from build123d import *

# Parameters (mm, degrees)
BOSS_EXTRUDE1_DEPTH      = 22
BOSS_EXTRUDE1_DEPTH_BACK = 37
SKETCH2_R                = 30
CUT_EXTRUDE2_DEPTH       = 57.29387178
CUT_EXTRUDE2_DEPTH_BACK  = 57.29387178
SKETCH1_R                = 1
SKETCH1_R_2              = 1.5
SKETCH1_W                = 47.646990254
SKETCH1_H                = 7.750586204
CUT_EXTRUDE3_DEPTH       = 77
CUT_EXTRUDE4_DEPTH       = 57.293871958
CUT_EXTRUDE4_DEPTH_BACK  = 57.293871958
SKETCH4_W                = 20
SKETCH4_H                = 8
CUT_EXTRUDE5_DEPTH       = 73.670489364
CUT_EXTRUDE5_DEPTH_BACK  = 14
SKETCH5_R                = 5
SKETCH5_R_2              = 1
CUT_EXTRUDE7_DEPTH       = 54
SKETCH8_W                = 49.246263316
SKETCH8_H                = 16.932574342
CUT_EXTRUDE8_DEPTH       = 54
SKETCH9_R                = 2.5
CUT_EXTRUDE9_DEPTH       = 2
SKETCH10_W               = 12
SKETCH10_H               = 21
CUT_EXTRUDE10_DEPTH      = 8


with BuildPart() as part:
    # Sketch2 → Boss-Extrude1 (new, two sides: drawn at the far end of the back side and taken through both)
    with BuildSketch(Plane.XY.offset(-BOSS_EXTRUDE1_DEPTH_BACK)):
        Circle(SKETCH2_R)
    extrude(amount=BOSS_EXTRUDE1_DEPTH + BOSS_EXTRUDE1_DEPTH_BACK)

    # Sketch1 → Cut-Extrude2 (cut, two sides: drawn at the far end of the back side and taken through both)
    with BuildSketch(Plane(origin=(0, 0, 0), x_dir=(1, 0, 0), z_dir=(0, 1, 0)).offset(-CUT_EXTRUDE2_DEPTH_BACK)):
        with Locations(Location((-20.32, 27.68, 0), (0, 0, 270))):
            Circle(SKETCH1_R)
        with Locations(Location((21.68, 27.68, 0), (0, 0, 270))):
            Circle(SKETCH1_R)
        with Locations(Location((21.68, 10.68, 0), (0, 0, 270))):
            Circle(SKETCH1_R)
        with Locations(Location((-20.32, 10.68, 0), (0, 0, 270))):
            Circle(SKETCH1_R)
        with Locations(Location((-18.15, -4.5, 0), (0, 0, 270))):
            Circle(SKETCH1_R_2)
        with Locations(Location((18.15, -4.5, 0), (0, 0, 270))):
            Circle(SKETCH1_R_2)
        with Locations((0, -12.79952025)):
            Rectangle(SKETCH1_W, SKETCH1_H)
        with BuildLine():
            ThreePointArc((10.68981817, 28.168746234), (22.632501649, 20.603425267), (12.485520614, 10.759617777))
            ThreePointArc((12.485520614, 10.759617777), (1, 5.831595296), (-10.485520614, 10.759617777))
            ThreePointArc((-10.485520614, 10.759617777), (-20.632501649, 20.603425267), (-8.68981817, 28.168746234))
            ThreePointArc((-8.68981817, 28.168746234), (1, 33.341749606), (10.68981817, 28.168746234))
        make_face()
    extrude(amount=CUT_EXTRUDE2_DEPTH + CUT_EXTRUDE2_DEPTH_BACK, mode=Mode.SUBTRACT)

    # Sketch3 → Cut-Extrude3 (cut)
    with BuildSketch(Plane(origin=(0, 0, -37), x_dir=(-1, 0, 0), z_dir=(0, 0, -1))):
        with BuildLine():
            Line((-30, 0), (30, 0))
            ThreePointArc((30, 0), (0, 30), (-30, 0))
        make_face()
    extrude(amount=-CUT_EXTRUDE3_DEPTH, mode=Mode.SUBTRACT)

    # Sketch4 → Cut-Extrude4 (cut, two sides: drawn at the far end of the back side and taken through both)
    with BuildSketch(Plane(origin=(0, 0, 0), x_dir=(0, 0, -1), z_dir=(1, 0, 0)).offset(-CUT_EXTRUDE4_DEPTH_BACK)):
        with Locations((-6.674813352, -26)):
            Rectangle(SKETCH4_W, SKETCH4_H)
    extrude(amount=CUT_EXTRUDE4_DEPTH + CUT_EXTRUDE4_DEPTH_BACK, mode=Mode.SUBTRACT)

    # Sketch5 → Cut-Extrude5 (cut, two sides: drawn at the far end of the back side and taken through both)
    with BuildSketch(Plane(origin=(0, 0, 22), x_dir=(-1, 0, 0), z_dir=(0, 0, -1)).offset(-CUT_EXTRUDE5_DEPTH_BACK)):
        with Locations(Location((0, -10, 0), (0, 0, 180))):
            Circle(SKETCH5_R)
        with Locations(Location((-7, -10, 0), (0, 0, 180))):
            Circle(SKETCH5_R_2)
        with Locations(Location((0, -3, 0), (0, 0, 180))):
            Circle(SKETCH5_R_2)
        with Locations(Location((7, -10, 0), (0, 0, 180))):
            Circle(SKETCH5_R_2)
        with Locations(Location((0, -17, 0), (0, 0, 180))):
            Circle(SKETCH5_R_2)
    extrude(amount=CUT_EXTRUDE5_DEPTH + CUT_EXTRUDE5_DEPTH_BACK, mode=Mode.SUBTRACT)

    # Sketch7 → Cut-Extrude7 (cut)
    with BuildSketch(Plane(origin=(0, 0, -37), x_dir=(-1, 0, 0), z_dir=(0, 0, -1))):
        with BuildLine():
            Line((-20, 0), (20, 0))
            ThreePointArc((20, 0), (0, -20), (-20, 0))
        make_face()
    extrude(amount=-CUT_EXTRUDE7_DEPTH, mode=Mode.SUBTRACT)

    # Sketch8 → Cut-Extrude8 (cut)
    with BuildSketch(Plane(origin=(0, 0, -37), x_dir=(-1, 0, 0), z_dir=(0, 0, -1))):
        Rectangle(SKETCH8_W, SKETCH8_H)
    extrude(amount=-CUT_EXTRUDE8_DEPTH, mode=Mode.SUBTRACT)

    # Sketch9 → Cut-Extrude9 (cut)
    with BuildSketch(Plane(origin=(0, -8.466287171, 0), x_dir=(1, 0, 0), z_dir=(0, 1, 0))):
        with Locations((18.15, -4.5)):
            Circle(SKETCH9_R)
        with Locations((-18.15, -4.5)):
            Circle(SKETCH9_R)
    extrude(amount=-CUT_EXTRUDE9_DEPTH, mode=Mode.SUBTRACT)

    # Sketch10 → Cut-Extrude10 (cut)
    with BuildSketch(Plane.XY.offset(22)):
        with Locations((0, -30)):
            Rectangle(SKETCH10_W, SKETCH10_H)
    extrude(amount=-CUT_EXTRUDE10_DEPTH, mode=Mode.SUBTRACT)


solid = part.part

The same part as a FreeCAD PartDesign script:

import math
import FreeCAD as App
import Part
import Sketcher

V = App.Vector
Q = App.Units.Quantity

doc = App.newDocument("Part")
params = doc.addObject("Spreadsheet::Sheet", "Params")
for row, (alias, value) in enumerate([
    ("sketch1_diameter", "60 mm"),
    ("pad1_length", "22 mm"),
    ("pad1_length2", "37 mm"),
    ("sketch2_diameter", "2 mm"),
    ("sketch2_diameter2", "3 mm"),
    ("sketch2_radius", "9 mm"),
    ("sketch3_radius", "30 mm"),
    ("pocket2_length", "77 mm"),
    ("sketch4_width", "8 mm"),
    ("sketch4_height", "20 mm"),
    ("sketch5_diameter", "10 mm"),
    ("sketch5_diameter2", "2 mm"),
    ("sketch6_radius", "20 mm"),
    ("pocket5_length", "54 mm"),
    ("pocket6_length", "54 mm"),
    ("sketch8_diameter", "5 mm"),
    ("pocket7_length", "2 mm"),
    ("sketch9_width", "12 mm"),
    ("sketch9_height", "21 mm"),
    ("pocket8_length", "8 mm"),
], start=1):
    params.set(f"A{row}", alias)
    params.set(f"B{row}", "=" + value)
    params.setAlias(f"B{row}", alias)

body = doc.addObject("PartDesign::Body", "Body")

sketch1 = body.newObject("Sketcher::SketchObject", "Sketch")
sketch1.AttachmentSupport = (doc.getObject("XY_Plane"), [""])
sketch1.MapMode = "FlatFace"
sketch1.addGeometry(Part.Circle(V(0, 0, 0), V(0, 0, 1), 30), False)
sketch1.addConstraint(Sketcher.Constraint("Coincident", 0, 3, -1, 1))
sketch1.addConstraint(Sketcher.Constraint("Diameter", 0, Q("60 mm")))
sketch1.setExpression("Constraints[1]", "Params.sketch1_diameter")
pad1 = body.newObject("PartDesign::Pad", "Pad")
pad1.Profile = sketch1
pad1.Type = "TwoLengths"
pad1.setExpression("Length", "Params.pad1_length")
pad1.setExpression("Length2", "Params.pad1_length2")

sketch2 = body.newObject("Sketcher::SketchObject", "Sketch001")
sketch2.AttachmentSupport = (doc.getObject("XZ_Plane"), [""])
sketch2.MapMode = "FlatFace"
sketch2.addGeometry(Part.Circle(V(-20.32, -27.68, 0), V(0, 0, 1), 1), False)
sketch2.addGeometry(Part.Circle(V(21.68, -27.68, 0), V(0, 0, 1), 1), False)
sketch2.addGeometry(Part.Circle(V(21.68, -10.68, 0), V(0, 0, 1), 1), False)
sketch2.addGeometry(Part.Circle(V(-20.32, -10.68, 0), V(0, 0, 1), 1), False)
sketch2.addGeometry(Part.Circle(V(-18.15, 4.5, 0), V(0, 0, 1), 1.5), False)
sketch2.addGeometry(Part.Circle(V(18.15, 4.5, 0), V(0, 0, 1), 1.5), False)
sketch2.addGeometry(Part.LineSegment(V(-23.823495, 8.924227, 0), V(-23.823495, 16.674813, 0)), False)
sketch2.addGeometry(Part.LineSegment(V(-23.823495, 16.674813, 0), V(23.823495, 16.674813, 0)), False)
sketch2.addGeometry(Part.LineSegment(V(23.823495, 16.674813, 0), V(23.823495, 8.924227, 0)), False)
sketch2.addGeometry(Part.LineSegment(V(23.823495, 8.924227, 0), V(-23.823495, 8.924227, 0)), False)
sketch2.addGeometry(Part.ArcOfCircle(Part.Circle(V(13.68, -19.68, 0), V(0, 0, 1), 9), math.radians(-109.404938), math.radians(97.626795)), False)
sketch2.addGeometry(Part.ArcOfCircle(Part.Circle(V(1, -21.68, 0), V(0, 0, 1), 11.66175), math.radians(-146.191923), math.radians(-33.808077)), False)
sketch2.addGeometry(Part.ArcOfCircle(Part.Circle(V(-11.68, -19.68, 0), V(0, 0, 1), 9), math.radians(82.373205), math.radians(289.404938)), False)
sketch2.addGeometry(Part.ArcOfCircle(Part.Circle(V(1, -21.68, 0), V(0, 0, 1), 15.848405), math.radians(43.555149), math.radians(136.444851)), False)
sketch2.addConstraint(Sketcher.Constraint("Coincident", 6, 2, 7, 1))
sketch2.addConstraint(Sketcher.Constraint("Coincident", 7, 2, 8, 1))
sketch2.addConstraint(Sketcher.Constraint("Coincident", 8, 2, 9, 1))
sketch2.addConstraint(Sketcher.Constraint("Coincident", 9, 2, 6, 1))
sketch2.addConstraint(Sketcher.Constraint("Coincident", 10, 1, 11, 2))
sketch2.addConstraint(Sketcher.Constraint("Coincident", 11, 1, 12, 2))
sketch2.addConstraint(Sketcher.Constraint("Coincident", 12, 1, 13, 2))
sketch2.addConstraint(Sketcher.Constraint("Coincident", 13, 1, 10, 2))
sketch2.addConstraint(Sketcher.Constraint("Vertical", 6))
sketch2.addConstraint(Sketcher.Constraint("Horizontal", 7))
sketch2.addConstraint(Sketcher.Constraint("Vertical", 8))
sketch2.addConstraint(Sketcher.Constraint("Horizontal", 9))
sketch2.addConstraint(Sketcher.Constraint("Coincident", 13, 3, 11, 3))
sketch2.addConstraint(Sketcher.Constraint("Equal", 0, 1))
sketch2.addConstraint(Sketcher.Constraint("Equal", 1, 2))
sketch2.addConstraint(Sketcher.Constraint("Equal", 2, 3))
sketch2.addConstraint(Sketcher.Constraint("Equal", 4, 5))
sketch2.addConstraint(Sketcher.Constraint("Equal", 10, 12))
sketch2.addConstraint(Sketcher.Constraint("Symmetric", 4, 3, 5, 3, -2))
sketch2.addConstraint(Sketcher.Constraint("Horizontal", 0, 3, 1, 3))
sketch2.addConstraint(Sketcher.Constraint("Horizontal", 2, 3, 3, 3))
sketch2.addConstraint(Sketcher.Constraint("Horizontal", 10, 3, 12, 3))
sketch2.addConstraint(Sketcher.Constraint("Horizontal", 10, 1, 11, 1))
sketch2.addConstraint(Sketcher.Constraint("Vertical", 1, 3, 2, 3))
sketch2.addConstraint(Sketcher.Constraint("Vertical", 0, 3, 3, 3))
sketch2.addConstraint(Sketcher.Constraint("Diameter", 0, Q("2 mm")))
sketch2.addConstraint(Sketcher.Constraint("Diameter", 4, Q("3 mm")))
sketch2.addConstraint(Sketcher.Constraint("Radius", 10, Q("9 mm")))
sketch2.addConstraint(Sketcher.Constraint("DistanceX", -1, 1, 11, 3, Q("1 mm")))
sketch2.addConstraint(Sketcher.Constraint("DistanceX", 0, 3, 1, 3, Q("42 mm")))
sketch2.addConstraint(Sketcher.Constraint("DistanceY", 1, 3, 2, 3, Q("17 mm")))
sketch2.addConstraint(Sketcher.Constraint("DistanceX", 10, 3, 1, 3, Q("8 mm")))
sketch2.addConstraint(Sketcher.Constraint("DistanceY", 1, 3, 10, 3, Q("8 mm")))
sketch2.addConstraint(Sketcher.Constraint("DistanceY", 11, 3, 10, 3, Q("2 mm")))
sketch2.addConstraint(Sketcher.Constraint("DistanceY", -1, 1, 4, 3, Q("4.5 mm")))
sketch2.addConstraint(Sketcher.Constraint("DistanceX", 4, 3, 5, 3, Q("36.3 mm")))
sketch2.addConstraint(Sketcher.Constraint("DistanceX", 0, 3, -1, 1, Q("20.32 mm")))
sketch2.addConstraint(Sketcher.Constraint("DistanceY", 0, 3, -1, 1, Q("27.68 mm")))
sketch2.addConstraint(Sketcher.Constraint("Radius", 11, Q("11.66175 mm")))
sketch2.addConstraint(Sketcher.Constraint("Radius", 13, Q("15.848405 mm")))
sketch2.addConstraint(Sketcher.Constraint("DistanceX", 7, 1, 7, 2, Q("47.64699 mm")))
sketch2.addConstraint(Sketcher.Constraint("DistanceY", 6, 1, 6, 2, Q("7.750586 mm")))
sketch2.addConstraint(Sketcher.Constraint("DistanceX", 6, 2, -1, 1, Q("23.823495 mm")))
sketch2.addConstraint(Sketcher.Constraint("DistanceY", -1, 1, 6, 2, Q("16.674813 mm")))
sketch2.setExpression("Constraints[25]", "Params.sketch2_diameter")
sketch2.setExpression("Constraints[26]", "Params.sketch2_diameter2")
sketch2.setExpression("Constraints[27]", "Params.sketch2_radius")
pocket1 = body.newObject("PartDesign::Pocket", "Pocket")
pocket1.Profile = sketch2
pocket1.Type = "ThroughAll"
pocket1.Midplane = True

sketch3 = body.newObject("Sketcher::SketchObject", "Sketch002")
sketch3.AttachmentSupport = (doc.getObject("XY_Plane"), [""])
sketch3.MapMode = "FlatFace"
sketch3.AttachmentOffset = App.Placement(V(0, 0, -37), App.Rotation())
sketch3.addGeometry(Part.LineSegment(V(30, 0, 0), V(-30, 0, 0)), False)
sketch3.addGeometry(Part.ArcOfCircle(Part.Circle(V(0, 0, 0), V(0, 0, 1), 30), math.radians(0), math.radians(180)), False)
sketch3.addConstraint(Sketcher.Constraint("Coincident", 0, 1, 1, 1))
sketch3.addConstraint(Sketcher.Constraint("Coincident", 1, 2, 0, 2))
sketch3.addConstraint(Sketcher.Constraint("Horizontal", 0))
sketch3.addConstraint(Sketcher.Constraint("Coincident", 1, 3, -1, 1))
sketch3.addConstraint(Sketcher.Constraint("PointOnObject", 0, 1, -1))
sketch3.addConstraint(Sketcher.Constraint("Radius", 1, Q("30 mm")))
sketch3.setExpression("Constraints[5]", "Params.sketch3_radius")
pocket2 = body.newObject("PartDesign::Pocket", "Pocket001")
pocket2.Profile = sketch3
pocket2.setExpression("Length", "Params.pocket2_length")
pocket2.Reversed = True

sketch4 = body.newObject("Sketcher::SketchObject", "Sketch003")
sketch4.AttachmentSupport = (doc.getObject("YZ_Plane"), [""])
sketch4.MapMode = "FlatFace"
sketch4.addGeometry(Part.LineSegment(V(-22, 16.674813, 0), V(-30, 16.674813, 0)), False)
sketch4.addGeometry(Part.LineSegment(V(-30, 16.674813, 0), V(-30, -3.325187, 0)), False)
sketch4.addGeometry(Part.LineSegment(V(-30, -3.325187, 0), V(-22, -3.325187, 0)), False)
sketch4.addGeometry(Part.LineSegment(V(-22, -3.325187, 0), V(-22, 16.674813, 0)), False)
sketch4.addConstraint(Sketcher.Constraint("Coincident", 0, 2, 1, 1))
sketch4.addConstraint(Sketcher.Constraint("Coincident", 1, 2, 2, 1))
sketch4.addConstraint(Sketcher.Constraint("Coincident", 2, 2, 3, 1))
sketch4.addConstraint(Sketcher.Constraint("Coincident", 3, 2, 0, 1))
sketch4.addConstraint(Sketcher.Constraint("Horizontal", 0))
sketch4.addConstraint(Sketcher.Constraint("Vertical", 1))
sketch4.addConstraint(Sketcher.Constraint("Horizontal", 2))
sketch4.addConstraint(Sketcher.Constraint("Vertical", 3))
sketch4.addConstraint(Sketcher.Constraint("DistanceX", 0, 2, 0, 1, Q("8 mm")))
sketch4.addConstraint(Sketcher.Constraint("DistanceY", 1, 2, 1, 1, Q("20 mm")))
sketch4.addConstraint(Sketcher.Constraint("DistanceX", 0, 2, -1, 1, Q("30 mm")))
sketch4.addConstraint(Sketcher.Constraint("DistanceY", -1, 1, 0, 2, Q("16.674813 mm")))
sketch4.setExpression("Constraints[8]", "Params.sketch4_width")
sketch4.setExpression("Constraints[9]", "Params.sketch4_height")
pocket3 = body.newObject("PartDesign::Pocket", "Pocket002")
pocket3.Profile = sketch4
pocket3.Type = "ThroughAll"
pocket3.Midplane = True

sketch5 = body.newObject("Sketcher::SketchObject", "Sketch004")
sketch5.AttachmentSupport = (doc.getObject("XY_Plane"), [""])
sketch5.MapMode = "FlatFace"
sketch5.AttachmentOffset = App.Placement(V(0, 0, 22), App.Rotation())
sketch5.addGeometry(Part.Circle(V(0, -10, 0), V(0, 0, 1), 5), False)
sketch5.addGeometry(Part.Circle(V(7, -10, 0), V(0, 0, 1), 1), False)
sketch5.addGeometry(Part.Circle(V(0, -3, 0), V(0, 0, 1), 1), False)
sketch5.addGeometry(Part.Circle(V(-7, -10, 0), V(0, 0, 1), 1), False)
sketch5.addGeometry(Part.Circle(V(0, -17, 0), V(0, 0, 1), 1), False)
sketch5.addConstraint(Sketcher.Constraint("Equal", 1, 2))
sketch5.addConstraint(Sketcher.Constraint("Equal", 2, 3))
sketch5.addConstraint(Sketcher.Constraint("Equal", 3, 4))
sketch5.addConstraint(Sketcher.Constraint("Symmetric", 1, 3, 3, 3, -2))
sketch5.addConstraint(Sketcher.Constraint("PointOnObject", 0, 3, -2))
sketch5.addConstraint(Sketcher.Constraint("PointOnObject", 2, 3, -2))
sketch5.addConstraint(Sketcher.Constraint("PointOnObject", 4, 3, -2))
sketch5.addConstraint(Sketcher.Constraint("Horizontal", 0, 3, 1, 3))
sketch5.addConstraint(Sketcher.Constraint("Diameter", 0, Q("10 mm")))
sketch5.addConstraint(Sketcher.Constraint("Diameter", 1, Q("2 mm")))
sketch5.addConstraint(Sketcher.Constraint("DistanceY", 0, 3, -1, 1, Q("10 mm")))
sketch5.addConstraint(Sketcher.Constraint("DistanceX", -1, 1, 1, 3, Q("7 mm")))
sketch5.addConstraint(Sketcher.Constraint("DistanceY", 2, 3, -1, 1, Q("3 mm")))
sketch5.addConstraint(Sketcher.Constraint("DistanceY", 4, 3, -1, 1, Q("17 mm")))
sketch5.setExpression("Constraints[8]", "Params.sketch5_diameter")
sketch5.setExpression("Constraints[9]", "Params.sketch5_diameter2")
pocket4 = body.newObject("PartDesign::Pocket", "Pocket003")
pocket4.Profile = sketch5
pocket4.Type = "ThroughAll"
pocket4.Midplane = True

sketch6 = body.newObject("Sketcher::SketchObject", "Sketch005")
sketch6.AttachmentSupport = (doc.getObject("XY_Plane"), [""])
sketch6.MapMode = "FlatFace"
sketch6.AttachmentOffset = App.Placement(V(0, 0, -37), App.Rotation())
sketch6.addGeometry(Part.LineSegment(V(-20, 0, 0), V(20, 0, 0)), False)
sketch6.addGeometry(Part.ArcOfCircle(Part.Circle(V(0, 0, 0), V(0, 0, 1), 20), math.radians(180), math.radians(360)), False)
sketch6.addConstraint(Sketcher.Constraint("Coincident", 0, 1, 1, 1))
sketch6.addConstraint(Sketcher.Constraint("Coincident", 1, 2, 0, 2))
sketch6.addConstraint(Sketcher.Constraint("Horizontal", 0))
sketch6.addConstraint(Sketcher.Constraint("Coincident", 1, 3, -1, 1))
sketch6.addConstraint(Sketcher.Constraint("PointOnObject", 0, 1, -1))
sketch6.addConstraint(Sketcher.Constraint("Radius", 1, Q("20 mm")))
sketch6.setExpression("Constraints[5]", "Params.sketch6_radius")
pocket5 = body.newObject("PartDesign::Pocket", "Pocket004")
pocket5.Profile = sketch6
pocket5.setExpression("Length", "Params.pocket5_length")
pocket5.Reversed = True

sketch7 = body.newObject("Sketcher::SketchObject", "Sketch006")
sketch7.AttachmentSupport = (doc.getObject("XY_Plane"), [""])
sketch7.MapMode = "FlatFace"
sketch7.AttachmentOffset = App.Placement(V(0, 0, -37), App.Rotation())
sketch7.addGeometry(Part.LineSegment(V(24.623132, 8.466287, 0), V(24.623132, -8.466287, 0)), False)
sketch7.addGeometry(Part.LineSegment(V(24.623132, -8.466287, 0), V(-24.623132, -8.466287, 0)), False)
sketch7.addGeometry(Part.LineSegment(V(-24.623132, -8.466287, 0), V(-24.623132, 8.466287, 0)), False)
sketch7.addGeometry(Part.LineSegment(V(-24.623132, 8.466287, 0), V(24.623132, 8.466287, 0)), False)
sketch7.addConstraint(Sketcher.Constraint("Coincident", 0, 2, 1, 1))
sketch7.addConstraint(Sketcher.Constraint("Coincident", 1, 2, 2, 1))
sketch7.addConstraint(Sketcher.Constraint("Coincident", 2, 2, 3, 1))
sketch7.addConstraint(Sketcher.Constraint("Coincident", 3, 2, 0, 1))
sketch7.addConstraint(Sketcher.Constraint("Vertical", 0))
sketch7.addConstraint(Sketcher.Constraint("Horizontal", 1))
sketch7.addConstraint(Sketcher.Constraint("Vertical", 2))
sketch7.addConstraint(Sketcher.Constraint("Horizontal", 3))
sketch7.addConstraint(Sketcher.Constraint("Symmetric", 0, 2, 2, 2, -1, 1))
sketch7.addConstraint(Sketcher.Constraint("DistanceX", 1, 2, 1, 1, Q("49.246263 mm")))
sketch7.addConstraint(Sketcher.Constraint("DistanceY", 0, 2, 0, 1, Q("16.932574 mm")))
pocket6 = body.newObject("PartDesign::Pocket", "Pocket005")
pocket6.Profile = sketch7
pocket6.setExpression("Length", "Params.pocket6_length")
pocket6.Reversed = True

sketch8 = body.newObject("Sketcher::SketchObject", "Sketch007")
sketch8.AttachmentSupport = (doc.getObject("XZ_Plane"), [""])
sketch8.MapMode = "FlatFace"
sketch8.AttachmentOffset = App.Placement(V(0, 0, 8.466287), App.Rotation())
sketch8.addGeometry(Part.Circle(V(18.15, 4.5, 0), V(0, 0, 1), 2.5), False)
sketch8.addGeometry(Part.Circle(V(-18.15, 4.5, 0), V(0, 0, 1), 2.5), False)
sketch8.addConstraint(Sketcher.Constraint("Equal", 0, 1))
sketch8.addConstraint(Sketcher.Constraint("Symmetric", 0, 3, 1, 3, -2))
sketch8.addConstraint(Sketcher.Constraint("Diameter", 0, Q("5 mm")))
sketch8.addConstraint(Sketcher.Constraint("DistanceY", -1, 1, 0, 3, Q("4.5 mm")))
sketch8.addConstraint(Sketcher.Constraint("DistanceX", 1, 3, 0, 3, Q("36.3 mm")))
sketch8.setExpression("Constraints[2]", "Params.sketch8_diameter")
pocket7 = body.newObject("PartDesign::Pocket", "Pocket006")
pocket7.Profile = sketch8
pocket7.setExpression("Length", "Params.pocket7_length")
pocket7.Reversed = True

sketch9 = body.newObject("Sketcher::SketchObject", "Sketch008")
sketch9.AttachmentSupport = (doc.getObject("XY_Plane"), [""])
sketch9.MapMode = "FlatFace"
sketch9.AttachmentOffset = App.Placement(V(0, 0, 22), App.Rotation())
sketch9.addGeometry(Part.LineSegment(V(-6, -19.5, 0), V(-6, -40.5, 0)), False)
sketch9.addGeometry(Part.LineSegment(V(-6, -40.5, 0), V(6, -40.5, 0)), False)
sketch9.addGeometry(Part.LineSegment(V(6, -40.5, 0), V(6, -19.5, 0)), False)
sketch9.addGeometry(Part.LineSegment(V(6, -19.5, 0), V(-6, -19.5, 0)), False)
sketch9.addConstraint(Sketcher.Constraint("Coincident", 0, 2, 1, 1))
sketch9.addConstraint(Sketcher.Constraint("Coincident", 1, 2, 2, 1))
sketch9.addConstraint(Sketcher.Constraint("Coincident", 2, 2, 3, 1))
sketch9.addConstraint(Sketcher.Constraint("Coincident", 3, 2, 0, 1))
sketch9.addConstraint(Sketcher.Constraint("Vertical", 0))
sketch9.addConstraint(Sketcher.Constraint("Horizontal", 1))
sketch9.addConstraint(Sketcher.Constraint("Vertical", 2))
sketch9.addConstraint(Sketcher.Constraint("Horizontal", 3))
sketch9.addConstraint(Sketcher.Constraint("DistanceX", 1, 1, 1, 2, Q("12 mm")))
sketch9.addConstraint(Sketcher.Constraint("DistanceY", 0, 2, 0, 1, Q("21 mm")))
sketch9.addConstraint(Sketcher.Constraint("DistanceX", 0, 2, -1, 1, Q("6 mm")))
sketch9.addConstraint(Sketcher.Constraint("DistanceY", 0, 2, -1, 1, Q("40.5 mm")))
sketch9.setExpression("Constraints[8]", "Params.sketch9_width")
sketch9.setExpression("Constraints[9]", "Params.sketch9_height")
pocket8 = body.newObject("PartDesign::Pocket", "Pocket007")
pocket8.Profile = sketch9
pocket8.setExpression("Length", "Params.pocket8_length")

doc.recompute()
